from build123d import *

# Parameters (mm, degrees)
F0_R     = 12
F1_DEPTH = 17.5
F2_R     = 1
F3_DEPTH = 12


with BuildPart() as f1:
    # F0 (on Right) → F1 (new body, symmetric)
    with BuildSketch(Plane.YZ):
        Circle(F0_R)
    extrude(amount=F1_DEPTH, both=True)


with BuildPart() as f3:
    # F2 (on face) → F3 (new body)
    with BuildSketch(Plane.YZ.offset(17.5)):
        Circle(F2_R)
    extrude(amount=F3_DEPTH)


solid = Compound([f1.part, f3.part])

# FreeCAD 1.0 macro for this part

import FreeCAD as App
import Part
import Sketcher
from FreeCAD import Vector

doc = App.newDocument("Part")
params = doc.addObject("Spreadsheet::Sheet", "Params")
for row, (alias, value) in enumerate([
    ("sketch1_diameter", "24 mm"),
    ("pad1_length", "35 mm"),
    ("sketch2_diameter", "2 mm"),
    ("pad2_length", "12 mm"),
], start=1):
    params.set(f"A{row}", alias)
    params.set(f"B{row}", "=" + value)
    params.setAlias(f"B{row}", alias)

body = doc.addObject("PartDesign::Body", "Body")

sketch1 = body.newObject("Sketcher::SketchObject", "Sketch")
sketch1.AttachmentSupport = (doc.getObject("YZ_Plane"), [""])
sketch1.MapMode = "FlatFace"
sketch1.addGeometry(Part.Circle(Vector(0, 0, 0), Vector(0, 0, 1), 12), False)
sketch1.addConstraint([
    Sketcher.Constraint("Coincident", 0, 3, -1, 1),
    Sketcher.Constraint("Diameter", 0, 24.0),
])
sketch1.setExpression("Constraints[1]", "Params.sketch1_diameter")
pad1 = body.newObject("PartDesign::Pad", "Pad")
pad1.Profile = sketch1
pad1.setExpression("Length", "Params.pad1_length")
pad1.Midplane = True
body2 = doc.addObject("PartDesign::Body", "Body001")

sketch2 = body2.newObject("Sketcher::SketchObject", "Sketch001")
sketch2.AttachmentSupport = (doc.getObject("YZ_Plane001"), [""])
sketch2.MapMode = "FlatFace"
sketch2.AttachmentOffset = App.Placement(Vector(0, 0, 17.5), App.Rotation())
sketch2.addGeometry(Part.Circle(Vector(0, 0, 0), Vector(0, 0, 1), 1), False)
sketch2.addConstraint([
    Sketcher.Constraint("Coincident", 0, 3, -1, 1),
    Sketcher.Constraint("Diameter", 0, 2.0),
])
sketch2.setExpression("Constraints[1]", "Params.sketch2_diameter")
pad2 = body2.newObject("PartDesign::Pad", "Pad001")
pad2.Profile = sketch2
pad2.setExpression("Length", "Params.pad2_length")

doc.recompute()
